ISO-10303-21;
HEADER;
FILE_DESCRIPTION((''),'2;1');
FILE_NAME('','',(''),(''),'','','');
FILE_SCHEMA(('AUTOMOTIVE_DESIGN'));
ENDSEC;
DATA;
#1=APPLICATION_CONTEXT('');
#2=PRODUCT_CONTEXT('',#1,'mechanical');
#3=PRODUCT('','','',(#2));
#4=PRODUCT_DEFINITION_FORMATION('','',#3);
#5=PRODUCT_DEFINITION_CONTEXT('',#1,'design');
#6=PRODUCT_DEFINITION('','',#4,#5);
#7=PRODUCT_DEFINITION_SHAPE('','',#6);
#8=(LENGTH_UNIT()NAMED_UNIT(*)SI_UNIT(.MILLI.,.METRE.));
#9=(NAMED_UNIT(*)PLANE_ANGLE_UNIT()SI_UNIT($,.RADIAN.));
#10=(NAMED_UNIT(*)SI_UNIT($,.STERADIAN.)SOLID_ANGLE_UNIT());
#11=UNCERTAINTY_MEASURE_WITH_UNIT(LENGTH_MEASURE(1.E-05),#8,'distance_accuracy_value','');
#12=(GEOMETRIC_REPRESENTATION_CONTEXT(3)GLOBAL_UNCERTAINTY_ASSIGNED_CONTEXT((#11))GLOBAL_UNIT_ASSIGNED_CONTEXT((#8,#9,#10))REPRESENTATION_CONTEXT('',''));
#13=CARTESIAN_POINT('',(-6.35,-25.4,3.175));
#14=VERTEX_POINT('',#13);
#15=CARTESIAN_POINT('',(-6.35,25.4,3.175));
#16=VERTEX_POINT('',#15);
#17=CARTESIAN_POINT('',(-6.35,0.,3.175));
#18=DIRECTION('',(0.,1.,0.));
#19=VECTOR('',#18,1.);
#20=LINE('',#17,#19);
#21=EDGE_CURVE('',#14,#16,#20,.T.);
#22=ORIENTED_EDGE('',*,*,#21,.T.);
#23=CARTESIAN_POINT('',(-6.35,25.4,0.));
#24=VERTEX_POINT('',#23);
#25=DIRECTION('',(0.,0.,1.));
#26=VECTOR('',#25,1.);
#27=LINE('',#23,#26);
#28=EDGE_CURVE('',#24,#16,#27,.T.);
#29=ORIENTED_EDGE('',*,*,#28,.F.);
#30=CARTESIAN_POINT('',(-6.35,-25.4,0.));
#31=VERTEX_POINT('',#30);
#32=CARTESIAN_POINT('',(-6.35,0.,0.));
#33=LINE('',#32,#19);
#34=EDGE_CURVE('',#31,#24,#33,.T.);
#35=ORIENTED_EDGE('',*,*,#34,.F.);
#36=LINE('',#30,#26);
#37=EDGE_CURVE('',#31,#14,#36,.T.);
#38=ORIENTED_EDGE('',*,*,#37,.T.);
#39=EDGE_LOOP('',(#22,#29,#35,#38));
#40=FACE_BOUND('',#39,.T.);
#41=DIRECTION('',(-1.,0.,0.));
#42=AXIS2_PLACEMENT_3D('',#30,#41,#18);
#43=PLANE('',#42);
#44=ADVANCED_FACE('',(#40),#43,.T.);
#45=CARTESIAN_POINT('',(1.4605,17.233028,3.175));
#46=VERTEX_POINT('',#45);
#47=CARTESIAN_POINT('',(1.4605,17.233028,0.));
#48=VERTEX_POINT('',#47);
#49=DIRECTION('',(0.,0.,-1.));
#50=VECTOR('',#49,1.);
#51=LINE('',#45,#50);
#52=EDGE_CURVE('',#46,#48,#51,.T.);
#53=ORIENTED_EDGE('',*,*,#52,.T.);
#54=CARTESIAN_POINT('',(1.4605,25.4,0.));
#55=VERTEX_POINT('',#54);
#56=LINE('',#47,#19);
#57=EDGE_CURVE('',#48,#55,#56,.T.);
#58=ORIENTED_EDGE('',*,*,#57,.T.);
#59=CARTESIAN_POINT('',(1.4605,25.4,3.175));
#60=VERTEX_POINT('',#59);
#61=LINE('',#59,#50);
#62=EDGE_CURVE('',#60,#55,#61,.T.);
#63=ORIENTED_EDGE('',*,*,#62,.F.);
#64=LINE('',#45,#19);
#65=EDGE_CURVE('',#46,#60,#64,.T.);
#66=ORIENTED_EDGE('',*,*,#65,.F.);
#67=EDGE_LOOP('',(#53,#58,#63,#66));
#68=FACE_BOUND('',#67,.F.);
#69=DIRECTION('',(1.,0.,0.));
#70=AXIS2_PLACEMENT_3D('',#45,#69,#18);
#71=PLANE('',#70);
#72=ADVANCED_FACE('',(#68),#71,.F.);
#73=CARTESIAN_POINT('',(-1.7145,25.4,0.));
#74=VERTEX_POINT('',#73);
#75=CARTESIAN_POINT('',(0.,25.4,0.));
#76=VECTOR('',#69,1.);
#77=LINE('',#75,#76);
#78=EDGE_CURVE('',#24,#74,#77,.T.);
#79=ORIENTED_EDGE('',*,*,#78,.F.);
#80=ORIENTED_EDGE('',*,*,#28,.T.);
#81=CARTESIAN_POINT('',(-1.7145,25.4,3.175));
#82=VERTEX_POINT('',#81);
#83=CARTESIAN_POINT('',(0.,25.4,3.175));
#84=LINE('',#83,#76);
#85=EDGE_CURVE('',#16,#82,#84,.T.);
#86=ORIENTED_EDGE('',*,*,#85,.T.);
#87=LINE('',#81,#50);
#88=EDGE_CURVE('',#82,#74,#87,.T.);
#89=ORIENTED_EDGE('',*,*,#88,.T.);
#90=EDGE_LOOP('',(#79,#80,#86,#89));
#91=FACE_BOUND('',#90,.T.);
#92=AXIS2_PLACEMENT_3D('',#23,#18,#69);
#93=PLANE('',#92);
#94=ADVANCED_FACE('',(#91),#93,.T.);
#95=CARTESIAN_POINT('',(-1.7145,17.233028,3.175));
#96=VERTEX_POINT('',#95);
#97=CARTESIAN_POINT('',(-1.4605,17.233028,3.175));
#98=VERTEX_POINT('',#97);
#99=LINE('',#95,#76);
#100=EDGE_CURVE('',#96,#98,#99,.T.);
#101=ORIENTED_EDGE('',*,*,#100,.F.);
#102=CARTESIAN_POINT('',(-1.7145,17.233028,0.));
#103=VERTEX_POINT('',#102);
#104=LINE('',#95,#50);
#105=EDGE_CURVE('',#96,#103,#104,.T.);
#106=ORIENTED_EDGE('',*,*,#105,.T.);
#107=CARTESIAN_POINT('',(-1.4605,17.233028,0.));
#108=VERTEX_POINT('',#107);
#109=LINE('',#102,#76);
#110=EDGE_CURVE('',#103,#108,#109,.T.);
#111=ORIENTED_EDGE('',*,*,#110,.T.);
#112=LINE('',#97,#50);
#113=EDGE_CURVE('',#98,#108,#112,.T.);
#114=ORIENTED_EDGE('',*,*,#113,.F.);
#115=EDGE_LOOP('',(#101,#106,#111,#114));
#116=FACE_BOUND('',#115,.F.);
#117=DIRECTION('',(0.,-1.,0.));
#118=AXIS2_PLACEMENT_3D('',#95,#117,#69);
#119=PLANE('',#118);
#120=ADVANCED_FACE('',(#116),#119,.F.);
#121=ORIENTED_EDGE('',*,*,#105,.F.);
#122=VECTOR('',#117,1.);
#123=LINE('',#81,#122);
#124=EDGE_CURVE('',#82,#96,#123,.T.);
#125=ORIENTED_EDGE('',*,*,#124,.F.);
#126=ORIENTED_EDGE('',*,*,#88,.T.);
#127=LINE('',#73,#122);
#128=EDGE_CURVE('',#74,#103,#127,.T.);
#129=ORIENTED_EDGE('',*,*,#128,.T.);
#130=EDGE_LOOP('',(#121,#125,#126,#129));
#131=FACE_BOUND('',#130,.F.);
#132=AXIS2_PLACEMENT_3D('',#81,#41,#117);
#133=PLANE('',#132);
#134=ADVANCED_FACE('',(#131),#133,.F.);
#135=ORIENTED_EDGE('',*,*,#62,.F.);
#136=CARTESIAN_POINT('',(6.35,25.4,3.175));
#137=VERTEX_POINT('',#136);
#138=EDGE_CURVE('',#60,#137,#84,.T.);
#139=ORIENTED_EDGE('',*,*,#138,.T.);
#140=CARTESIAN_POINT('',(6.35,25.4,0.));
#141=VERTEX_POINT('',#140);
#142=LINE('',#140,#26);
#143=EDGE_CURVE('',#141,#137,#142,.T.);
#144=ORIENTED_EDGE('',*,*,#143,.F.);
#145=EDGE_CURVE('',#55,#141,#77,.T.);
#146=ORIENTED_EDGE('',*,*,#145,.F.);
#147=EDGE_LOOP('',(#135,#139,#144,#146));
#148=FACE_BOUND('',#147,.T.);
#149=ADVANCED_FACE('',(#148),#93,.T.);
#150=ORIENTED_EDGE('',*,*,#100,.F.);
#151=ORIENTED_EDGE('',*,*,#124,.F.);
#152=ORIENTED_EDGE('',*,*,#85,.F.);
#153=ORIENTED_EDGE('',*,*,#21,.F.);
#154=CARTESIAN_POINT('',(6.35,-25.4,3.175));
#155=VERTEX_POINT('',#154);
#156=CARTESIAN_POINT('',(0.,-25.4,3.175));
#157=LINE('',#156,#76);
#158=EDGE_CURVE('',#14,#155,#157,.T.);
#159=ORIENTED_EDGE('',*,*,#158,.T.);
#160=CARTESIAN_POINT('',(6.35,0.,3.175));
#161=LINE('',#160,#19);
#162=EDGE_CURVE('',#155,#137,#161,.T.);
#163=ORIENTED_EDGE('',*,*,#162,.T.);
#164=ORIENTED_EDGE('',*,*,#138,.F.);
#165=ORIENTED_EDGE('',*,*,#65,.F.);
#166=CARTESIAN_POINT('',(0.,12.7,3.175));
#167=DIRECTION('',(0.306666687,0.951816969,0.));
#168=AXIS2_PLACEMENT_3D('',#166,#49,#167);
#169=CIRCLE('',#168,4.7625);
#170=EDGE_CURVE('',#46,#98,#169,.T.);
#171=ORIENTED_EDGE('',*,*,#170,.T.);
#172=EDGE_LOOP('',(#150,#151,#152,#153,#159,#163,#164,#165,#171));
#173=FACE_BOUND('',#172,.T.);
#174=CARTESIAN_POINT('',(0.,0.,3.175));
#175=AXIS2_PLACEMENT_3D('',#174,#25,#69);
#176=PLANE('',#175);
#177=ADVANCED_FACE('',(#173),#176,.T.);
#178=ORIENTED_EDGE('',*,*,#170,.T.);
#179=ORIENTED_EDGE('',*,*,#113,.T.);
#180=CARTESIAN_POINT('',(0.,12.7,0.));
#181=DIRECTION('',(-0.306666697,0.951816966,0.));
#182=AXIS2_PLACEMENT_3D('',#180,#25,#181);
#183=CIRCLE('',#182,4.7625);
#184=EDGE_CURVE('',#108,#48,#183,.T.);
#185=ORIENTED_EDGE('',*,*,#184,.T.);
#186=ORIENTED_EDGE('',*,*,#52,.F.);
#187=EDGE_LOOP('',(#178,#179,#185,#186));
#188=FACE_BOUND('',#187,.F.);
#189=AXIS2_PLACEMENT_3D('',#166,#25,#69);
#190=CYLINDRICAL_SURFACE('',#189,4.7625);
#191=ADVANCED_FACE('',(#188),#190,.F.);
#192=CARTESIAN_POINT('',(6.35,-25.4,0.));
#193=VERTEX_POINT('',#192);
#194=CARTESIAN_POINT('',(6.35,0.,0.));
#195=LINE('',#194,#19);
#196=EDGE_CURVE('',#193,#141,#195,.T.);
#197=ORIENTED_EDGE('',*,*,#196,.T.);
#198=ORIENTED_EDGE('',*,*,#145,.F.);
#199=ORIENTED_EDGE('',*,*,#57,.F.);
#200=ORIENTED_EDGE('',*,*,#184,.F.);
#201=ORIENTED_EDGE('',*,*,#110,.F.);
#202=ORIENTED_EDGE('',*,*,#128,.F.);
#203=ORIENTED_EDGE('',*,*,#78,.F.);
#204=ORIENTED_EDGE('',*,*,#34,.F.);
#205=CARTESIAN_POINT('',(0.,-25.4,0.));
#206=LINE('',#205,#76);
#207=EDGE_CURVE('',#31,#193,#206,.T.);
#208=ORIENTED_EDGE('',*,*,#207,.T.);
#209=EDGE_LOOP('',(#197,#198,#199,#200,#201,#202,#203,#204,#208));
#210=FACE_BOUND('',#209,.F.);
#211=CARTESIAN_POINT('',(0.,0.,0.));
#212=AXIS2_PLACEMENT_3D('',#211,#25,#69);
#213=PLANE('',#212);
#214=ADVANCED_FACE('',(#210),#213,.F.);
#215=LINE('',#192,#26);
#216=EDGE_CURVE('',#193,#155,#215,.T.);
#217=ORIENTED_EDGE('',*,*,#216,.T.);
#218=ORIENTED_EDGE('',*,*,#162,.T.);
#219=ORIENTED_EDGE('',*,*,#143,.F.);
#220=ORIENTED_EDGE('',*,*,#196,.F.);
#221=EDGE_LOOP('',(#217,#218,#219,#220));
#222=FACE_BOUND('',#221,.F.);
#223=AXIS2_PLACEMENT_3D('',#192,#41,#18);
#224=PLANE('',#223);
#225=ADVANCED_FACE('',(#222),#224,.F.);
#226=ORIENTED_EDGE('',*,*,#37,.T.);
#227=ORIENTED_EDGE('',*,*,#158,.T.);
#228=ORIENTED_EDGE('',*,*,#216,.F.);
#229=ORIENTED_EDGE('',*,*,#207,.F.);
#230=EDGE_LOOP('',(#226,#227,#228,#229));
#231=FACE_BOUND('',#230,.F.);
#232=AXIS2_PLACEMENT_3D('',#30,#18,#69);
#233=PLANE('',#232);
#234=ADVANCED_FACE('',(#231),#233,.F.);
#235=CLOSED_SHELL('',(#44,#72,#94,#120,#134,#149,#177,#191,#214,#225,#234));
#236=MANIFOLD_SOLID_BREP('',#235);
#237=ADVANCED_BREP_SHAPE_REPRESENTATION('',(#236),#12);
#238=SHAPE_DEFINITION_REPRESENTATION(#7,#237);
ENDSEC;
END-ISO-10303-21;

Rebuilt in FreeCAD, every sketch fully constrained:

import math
import FreeCAD as App
import Part
import Sketcher
Q = App.Units.Quantity

doc = App.newDocument("Part")
body = doc.addObject("PartDesign::Body", "Body")

sketch1 = doc.addObject("Sketcher::SketchObject", "Sketch")
body.addObject(sketch1)
sketch1.AttachmentSupport = (doc.XY_Plane, [""])
sketch1.MapMode = "FlatFace"
sketch1.addGeometry([
    Part.LineSegment(App.Vector(-6.35, 25.4, 0), App.Vector(-6.35, -25.4, 0)),
    Part.LineSegment(App.Vector(-6.35, -25.4, 0), App.Vector(6.35, -25.4, 0)),
    Part.LineSegment(App.Vector(6.35, -25.4, 0), App.Vector(6.35, 25.4, 0)),
    Part.LineSegment(App.Vector(6.35, 25.4, 0), App.Vector(-6.35, 25.4, 0)),
], False)
sketch1.addConstraint([
    Sketcher.Constraint("Coincident", 0, 2, 1, 1),
    Sketcher.Constraint("Coincident", 1, 2, 2, 1),
    Sketcher.Constraint("Coincident", 2, 2, 3, 1),
    Sketcher.Constraint("Coincident", 3, 2, 0, 1),
    Sketcher.Constraint("Vertical", 0),
    Sketcher.Constraint("Horizontal", 1),
    Sketcher.Constraint("Vertical", 2),
    Sketcher.Constraint("Horizontal", 3),
    Sketcher.Constraint("Symmetric", 0, 2, 2, 2, -1, 1),
    Sketcher.Constraint("DistanceY", 0, 2, 0, 1, Q("2 in")),
    Sketcher.Constraint("DistanceX", 1, 1, 1, 2, Q("0.5 in")),
])
pad1 = doc.addObject("PartDesign::Pad", "Pad")
body.addObject(pad1)
pad1.Profile = sketch1
pad1.Length = Q("0.125 in")

sketch2 = doc.addObject("Sketcher::SketchObject", "Sketch001")
body.addObject(sketch2)
sketch2.AttachmentSupport = (doc.XY_Plane, [""])
sketch2.MapMode = "FlatFace"
sketch2.AttachmentOffset = App.Placement(App.Vector(0, 0, 0.125 * 25.4), App.Rotation())
sketch2.addGeometry(Part.Circle(App.Vector(0, 12.7, 0), App.Vector(0, 0, 1), 4.7625), False)
sketch2.addConstraint([
    Sketcher.Constraint("PointOnObject", 0, 3, -2),
    Sketcher.Constraint("Diameter", 0, Q("0.375 in")),
    Sketcher.Constraint("DistanceY", -1, 1, 0, 3, Q("0.5 in")),
])
pocket1 = doc.addObject("PartDesign::Pocket", "Pocket")
body.addObject(pocket1)
pocket1.Profile = sketch2
pocket1.Type = "ThroughAll"

sketch3 = doc.addObject("Sketcher::SketchObject", "Sketch002")
body.addObject(sketch3)
sketch3.AttachmentSupport = (doc.XY_Plane, [""])
sketch3.MapMode = "FlatFace"
sketch3.AttachmentOffset = App.Placement(App.Vector(0, 0, 0.125 * 25.4), App.Rotation())
sketch3.addGeometry([
    Part.LineSegment(App.Vector(1.4605, 25.4, 0), App.Vector(-1.7145, 25.4, 0)),
    Part.LineSegment(App.Vector(-1.7145, 25.4, 0), App.Vector(-1.7145, 17.233028, 0)),
    Part.LineSegment(App.Vector(-1.7145, 17.233028, 0), App.Vector(-1.4605, 17.233028, 0)),
    Part.ArcOfCircle(Part.Circle(App.Vector(0, 12.700007, 0), App.Vector(0, 0, 1), 4.762493), math.radians(72.141511), math.radians(107.858489)),
    Part.LineSegment(App.Vector(1.4605, 17.233028, 0), App.Vector(1.4605, 25.4, 0)),
], False)
sketch3.addConstraint([
    Sketcher.Constraint("Coincident", 0, 2, 1, 1),
    Sketcher.Constraint("Coincident", 1, 2, 2, 1),
    Sketcher.Constraint("Coincident", 2, 2, 3, 2),
    Sketcher.Constraint("Coincident", 3, 1, 4, 1),
    Sketcher.Constraint("Coincident", 4, 2, 0, 1),
    Sketcher.Constraint("Horizontal", 0),
    Sketcher.Constraint("Vertical", 1),
    Sketcher.Constraint("Horizontal", 2),
    Sketcher.Constraint("Vertical", 4),
    Sketcher.Constraint("Symmetric", 2, 2, 3, 1, -2),
    Sketcher.Constraint("DistanceY", -1, 1, 0, 2, Q("1 in")),
    Sketcher.Constraint("DistanceX", 2, 1, 2, 2, Q("0.01 in")),
    Sketcher.Constraint("DistanceX", 0, 2, 0, 1, Q("0.125 in")),
    Sketcher.Constraint("Radius", 3, Q("4.762493 mm")),
    Sketcher.Constraint("DistanceY", 1, 2, 1, 1, Q("8.166972 mm")),
])
pocket2 = doc.addObject("PartDesign::Pocket", "Pocket001")
body.addObject(pocket2)
pocket2.Profile = sketch3
pocket2.Type = "ThroughAll"

doc.recompute()
